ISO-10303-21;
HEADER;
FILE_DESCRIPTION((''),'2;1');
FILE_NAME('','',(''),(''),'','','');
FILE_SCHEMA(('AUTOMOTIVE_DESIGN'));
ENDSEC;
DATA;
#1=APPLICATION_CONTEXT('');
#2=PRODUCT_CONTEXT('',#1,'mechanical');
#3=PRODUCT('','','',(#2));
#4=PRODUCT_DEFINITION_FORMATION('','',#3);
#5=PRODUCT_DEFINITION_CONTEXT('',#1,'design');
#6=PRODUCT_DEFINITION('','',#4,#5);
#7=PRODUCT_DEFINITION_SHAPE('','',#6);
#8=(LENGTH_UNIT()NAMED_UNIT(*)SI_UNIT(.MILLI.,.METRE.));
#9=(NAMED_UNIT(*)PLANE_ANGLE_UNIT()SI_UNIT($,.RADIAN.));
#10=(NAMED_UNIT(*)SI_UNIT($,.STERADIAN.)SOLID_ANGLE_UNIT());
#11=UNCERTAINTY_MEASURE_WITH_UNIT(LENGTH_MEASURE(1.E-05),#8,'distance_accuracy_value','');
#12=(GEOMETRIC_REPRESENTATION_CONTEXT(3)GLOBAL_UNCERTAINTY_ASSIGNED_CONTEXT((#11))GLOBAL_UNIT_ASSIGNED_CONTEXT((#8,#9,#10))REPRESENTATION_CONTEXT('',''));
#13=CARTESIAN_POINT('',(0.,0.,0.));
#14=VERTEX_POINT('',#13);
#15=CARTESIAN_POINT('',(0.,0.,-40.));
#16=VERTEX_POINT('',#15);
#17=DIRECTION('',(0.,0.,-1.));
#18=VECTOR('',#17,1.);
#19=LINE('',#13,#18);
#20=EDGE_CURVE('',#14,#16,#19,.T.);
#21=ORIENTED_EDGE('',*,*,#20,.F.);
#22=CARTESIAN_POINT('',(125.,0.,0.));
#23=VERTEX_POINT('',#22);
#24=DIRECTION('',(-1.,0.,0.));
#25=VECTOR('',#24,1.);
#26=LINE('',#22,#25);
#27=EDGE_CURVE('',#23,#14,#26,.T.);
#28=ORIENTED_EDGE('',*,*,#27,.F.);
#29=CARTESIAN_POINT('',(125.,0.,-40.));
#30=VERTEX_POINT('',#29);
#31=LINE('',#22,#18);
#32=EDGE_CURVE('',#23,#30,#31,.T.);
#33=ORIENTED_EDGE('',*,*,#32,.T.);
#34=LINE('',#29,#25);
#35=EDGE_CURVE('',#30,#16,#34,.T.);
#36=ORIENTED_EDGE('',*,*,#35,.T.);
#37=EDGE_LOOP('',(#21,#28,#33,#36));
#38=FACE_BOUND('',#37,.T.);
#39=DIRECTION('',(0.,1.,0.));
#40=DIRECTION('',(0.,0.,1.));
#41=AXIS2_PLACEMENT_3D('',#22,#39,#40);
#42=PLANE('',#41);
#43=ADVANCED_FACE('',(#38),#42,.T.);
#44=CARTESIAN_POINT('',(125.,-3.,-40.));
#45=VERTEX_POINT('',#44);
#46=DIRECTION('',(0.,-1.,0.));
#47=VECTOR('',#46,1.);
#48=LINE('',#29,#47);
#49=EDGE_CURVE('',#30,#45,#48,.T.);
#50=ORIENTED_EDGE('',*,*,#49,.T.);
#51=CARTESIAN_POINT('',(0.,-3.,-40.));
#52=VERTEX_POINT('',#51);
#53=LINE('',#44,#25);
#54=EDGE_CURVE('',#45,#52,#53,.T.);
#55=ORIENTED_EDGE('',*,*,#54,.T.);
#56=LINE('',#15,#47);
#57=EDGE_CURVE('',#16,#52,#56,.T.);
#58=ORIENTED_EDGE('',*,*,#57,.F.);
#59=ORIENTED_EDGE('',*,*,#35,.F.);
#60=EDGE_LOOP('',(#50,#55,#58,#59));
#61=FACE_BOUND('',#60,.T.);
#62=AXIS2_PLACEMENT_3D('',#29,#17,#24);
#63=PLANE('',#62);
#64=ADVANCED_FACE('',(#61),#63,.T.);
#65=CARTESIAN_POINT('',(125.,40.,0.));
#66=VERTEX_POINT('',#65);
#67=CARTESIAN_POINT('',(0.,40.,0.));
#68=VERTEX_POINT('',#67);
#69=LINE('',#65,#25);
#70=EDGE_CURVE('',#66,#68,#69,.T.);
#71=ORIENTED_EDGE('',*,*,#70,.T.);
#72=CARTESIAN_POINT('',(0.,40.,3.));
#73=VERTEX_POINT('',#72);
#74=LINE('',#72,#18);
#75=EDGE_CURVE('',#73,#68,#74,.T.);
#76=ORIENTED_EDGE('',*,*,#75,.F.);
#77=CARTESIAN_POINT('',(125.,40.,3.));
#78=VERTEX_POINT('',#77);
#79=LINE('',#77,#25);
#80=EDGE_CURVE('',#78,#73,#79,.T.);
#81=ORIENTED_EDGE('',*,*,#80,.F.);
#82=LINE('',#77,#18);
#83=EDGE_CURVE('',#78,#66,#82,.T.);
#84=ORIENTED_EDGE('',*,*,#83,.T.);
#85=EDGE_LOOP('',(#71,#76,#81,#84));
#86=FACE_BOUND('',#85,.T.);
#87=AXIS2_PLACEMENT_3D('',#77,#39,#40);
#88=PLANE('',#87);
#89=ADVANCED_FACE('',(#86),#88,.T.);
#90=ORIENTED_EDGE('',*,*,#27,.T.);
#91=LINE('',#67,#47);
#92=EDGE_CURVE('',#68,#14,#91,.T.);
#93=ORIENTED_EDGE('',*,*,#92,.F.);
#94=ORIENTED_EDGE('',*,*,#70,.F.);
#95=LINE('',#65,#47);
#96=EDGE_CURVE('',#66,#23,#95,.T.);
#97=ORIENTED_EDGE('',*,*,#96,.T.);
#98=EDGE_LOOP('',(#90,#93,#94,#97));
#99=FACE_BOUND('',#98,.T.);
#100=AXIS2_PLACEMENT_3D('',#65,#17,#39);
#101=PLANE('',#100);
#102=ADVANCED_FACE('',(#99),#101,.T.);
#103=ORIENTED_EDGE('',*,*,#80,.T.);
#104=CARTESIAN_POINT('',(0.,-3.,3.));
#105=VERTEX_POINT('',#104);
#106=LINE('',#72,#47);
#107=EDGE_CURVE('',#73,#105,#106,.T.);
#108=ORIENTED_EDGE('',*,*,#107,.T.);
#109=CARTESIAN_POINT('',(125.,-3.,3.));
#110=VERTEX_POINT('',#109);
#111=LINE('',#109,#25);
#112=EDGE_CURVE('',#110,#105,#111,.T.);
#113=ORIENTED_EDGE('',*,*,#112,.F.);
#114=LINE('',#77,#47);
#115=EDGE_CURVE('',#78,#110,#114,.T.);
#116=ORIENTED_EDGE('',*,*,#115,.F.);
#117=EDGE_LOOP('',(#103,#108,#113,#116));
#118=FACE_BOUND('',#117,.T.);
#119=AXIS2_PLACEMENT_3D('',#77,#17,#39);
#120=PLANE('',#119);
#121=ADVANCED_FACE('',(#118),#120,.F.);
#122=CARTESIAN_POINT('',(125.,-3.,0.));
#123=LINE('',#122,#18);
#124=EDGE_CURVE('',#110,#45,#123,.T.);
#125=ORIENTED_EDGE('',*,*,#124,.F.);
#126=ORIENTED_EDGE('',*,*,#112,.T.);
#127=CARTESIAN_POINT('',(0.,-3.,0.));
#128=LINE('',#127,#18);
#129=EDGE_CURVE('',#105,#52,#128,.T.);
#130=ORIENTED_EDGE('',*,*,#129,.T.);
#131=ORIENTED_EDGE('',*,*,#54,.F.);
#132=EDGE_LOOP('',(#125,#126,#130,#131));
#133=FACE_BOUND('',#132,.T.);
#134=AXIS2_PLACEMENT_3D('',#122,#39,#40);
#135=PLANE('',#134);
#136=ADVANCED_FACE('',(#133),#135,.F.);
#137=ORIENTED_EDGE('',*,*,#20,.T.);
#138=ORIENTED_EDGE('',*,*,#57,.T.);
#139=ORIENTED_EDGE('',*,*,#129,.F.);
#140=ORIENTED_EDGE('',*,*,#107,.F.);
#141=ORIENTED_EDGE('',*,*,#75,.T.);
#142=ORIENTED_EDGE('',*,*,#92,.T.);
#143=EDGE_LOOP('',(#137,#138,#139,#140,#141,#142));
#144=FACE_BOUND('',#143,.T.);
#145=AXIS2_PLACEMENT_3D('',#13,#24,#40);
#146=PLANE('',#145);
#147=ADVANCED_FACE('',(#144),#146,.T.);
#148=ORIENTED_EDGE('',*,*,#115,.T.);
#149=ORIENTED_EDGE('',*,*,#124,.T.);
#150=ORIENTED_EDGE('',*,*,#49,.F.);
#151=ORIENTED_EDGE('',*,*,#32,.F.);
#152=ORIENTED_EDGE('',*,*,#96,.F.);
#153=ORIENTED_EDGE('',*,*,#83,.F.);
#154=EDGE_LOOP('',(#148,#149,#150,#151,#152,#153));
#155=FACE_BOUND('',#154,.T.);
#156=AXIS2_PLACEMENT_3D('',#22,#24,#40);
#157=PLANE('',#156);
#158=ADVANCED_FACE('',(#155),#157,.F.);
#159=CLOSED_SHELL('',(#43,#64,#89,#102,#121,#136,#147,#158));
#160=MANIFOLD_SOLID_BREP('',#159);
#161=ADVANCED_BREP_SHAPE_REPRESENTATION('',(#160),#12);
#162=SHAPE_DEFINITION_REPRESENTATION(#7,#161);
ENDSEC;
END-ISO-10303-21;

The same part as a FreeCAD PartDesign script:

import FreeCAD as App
import Part
import Sketcher

V = App.Vector
Q = App.Units.Quantity

doc = App.newDocument("Part")
body = doc.addObject("PartDesign::Body", "Body")

sketch1 = body.newObject("Sketcher::SketchObject", "Sketch")
sketch1.AttachmentSupport = (doc.getObject("YZ_Plane"), [""])
sketch1.MapMode = "FlatFace"
sketch1.addGeometry(Part.LineSegment(V(0, 0, 0), V(40, 0, 0)), False)
sketch1.addGeometry(Part.LineSegment(V(40, 0, 0), V(40, 3, 0)), False)
sketch1.addGeometry(Part.LineSegment(V(40, 3, 0), V(-3, 3, 0)), False)
sketch1.addGeometry(Part.LineSegment(V(-3, 3, 0), V(-3, -40, 0)), False)
sketch1.addGeometry(Part.LineSegment(V(-3, -40, 0), V(0, -40, 0)), False)
sketch1.addGeometry(Part.LineSegment(V(0, -40, 0), V(0, 0, 0)), False)
sketch1.addConstraint(Sketcher.Constraint("Coincident", 0, 2, 1, 1))
sketch1.addConstraint(Sketcher.Constraint("Coincident", 1, 2, 2, 1))
sketch1.addConstraint(Sketcher.Constraint("Coincident", 2, 2, 3, 1))
sketch1.addConstraint(Sketcher.Constraint("Coincident", 3, 2, 4, 1))
sketch1.addConstraint(Sketcher.Constraint("Coincident", 4, 2, 5, 1))
sketch1.addConstraint(Sketcher.Constraint("Coincident", 5, 2, 0, 1))
sketch1.addConstraint(Sketcher.Constraint("Horizontal", 0))
sketch1.addConstraint(Sketcher.Constraint("Vertical", 1))
sketch1.addConstraint(Sketcher.Constraint("Horizontal", 2))
sketch1.addConstraint(Sketcher.Constraint("Vertical", 3))
sketch1.addConstraint(Sketcher.Constraint("Horizontal", 4))
sketch1.addConstraint(Sketcher.Constraint("Vertical", 5))
sketch1.addConstraint(Sketcher.Constraint("Coincident", 5, 2, -1, 1))
sketch1.addConstraint(Sketcher.Constraint("Equal", 4, 1))
sketch1.addConstraint(Sketcher.Constraint("Equal", 2, 3))
sketch1.addConstraint(Sketcher.Constraint("DistanceX", 0, 1, 0, 2, Q("40 mm")))
sketch1.addConstraint(Sketcher.Constraint("DistanceX", 2, 2, 2, 1, Q("43 mm")))
pad1 = body.newObject("PartDesign::Pad", "Pad")
pad1.Profile = sketch1
pad1.Length = 125

doc.recompute()
